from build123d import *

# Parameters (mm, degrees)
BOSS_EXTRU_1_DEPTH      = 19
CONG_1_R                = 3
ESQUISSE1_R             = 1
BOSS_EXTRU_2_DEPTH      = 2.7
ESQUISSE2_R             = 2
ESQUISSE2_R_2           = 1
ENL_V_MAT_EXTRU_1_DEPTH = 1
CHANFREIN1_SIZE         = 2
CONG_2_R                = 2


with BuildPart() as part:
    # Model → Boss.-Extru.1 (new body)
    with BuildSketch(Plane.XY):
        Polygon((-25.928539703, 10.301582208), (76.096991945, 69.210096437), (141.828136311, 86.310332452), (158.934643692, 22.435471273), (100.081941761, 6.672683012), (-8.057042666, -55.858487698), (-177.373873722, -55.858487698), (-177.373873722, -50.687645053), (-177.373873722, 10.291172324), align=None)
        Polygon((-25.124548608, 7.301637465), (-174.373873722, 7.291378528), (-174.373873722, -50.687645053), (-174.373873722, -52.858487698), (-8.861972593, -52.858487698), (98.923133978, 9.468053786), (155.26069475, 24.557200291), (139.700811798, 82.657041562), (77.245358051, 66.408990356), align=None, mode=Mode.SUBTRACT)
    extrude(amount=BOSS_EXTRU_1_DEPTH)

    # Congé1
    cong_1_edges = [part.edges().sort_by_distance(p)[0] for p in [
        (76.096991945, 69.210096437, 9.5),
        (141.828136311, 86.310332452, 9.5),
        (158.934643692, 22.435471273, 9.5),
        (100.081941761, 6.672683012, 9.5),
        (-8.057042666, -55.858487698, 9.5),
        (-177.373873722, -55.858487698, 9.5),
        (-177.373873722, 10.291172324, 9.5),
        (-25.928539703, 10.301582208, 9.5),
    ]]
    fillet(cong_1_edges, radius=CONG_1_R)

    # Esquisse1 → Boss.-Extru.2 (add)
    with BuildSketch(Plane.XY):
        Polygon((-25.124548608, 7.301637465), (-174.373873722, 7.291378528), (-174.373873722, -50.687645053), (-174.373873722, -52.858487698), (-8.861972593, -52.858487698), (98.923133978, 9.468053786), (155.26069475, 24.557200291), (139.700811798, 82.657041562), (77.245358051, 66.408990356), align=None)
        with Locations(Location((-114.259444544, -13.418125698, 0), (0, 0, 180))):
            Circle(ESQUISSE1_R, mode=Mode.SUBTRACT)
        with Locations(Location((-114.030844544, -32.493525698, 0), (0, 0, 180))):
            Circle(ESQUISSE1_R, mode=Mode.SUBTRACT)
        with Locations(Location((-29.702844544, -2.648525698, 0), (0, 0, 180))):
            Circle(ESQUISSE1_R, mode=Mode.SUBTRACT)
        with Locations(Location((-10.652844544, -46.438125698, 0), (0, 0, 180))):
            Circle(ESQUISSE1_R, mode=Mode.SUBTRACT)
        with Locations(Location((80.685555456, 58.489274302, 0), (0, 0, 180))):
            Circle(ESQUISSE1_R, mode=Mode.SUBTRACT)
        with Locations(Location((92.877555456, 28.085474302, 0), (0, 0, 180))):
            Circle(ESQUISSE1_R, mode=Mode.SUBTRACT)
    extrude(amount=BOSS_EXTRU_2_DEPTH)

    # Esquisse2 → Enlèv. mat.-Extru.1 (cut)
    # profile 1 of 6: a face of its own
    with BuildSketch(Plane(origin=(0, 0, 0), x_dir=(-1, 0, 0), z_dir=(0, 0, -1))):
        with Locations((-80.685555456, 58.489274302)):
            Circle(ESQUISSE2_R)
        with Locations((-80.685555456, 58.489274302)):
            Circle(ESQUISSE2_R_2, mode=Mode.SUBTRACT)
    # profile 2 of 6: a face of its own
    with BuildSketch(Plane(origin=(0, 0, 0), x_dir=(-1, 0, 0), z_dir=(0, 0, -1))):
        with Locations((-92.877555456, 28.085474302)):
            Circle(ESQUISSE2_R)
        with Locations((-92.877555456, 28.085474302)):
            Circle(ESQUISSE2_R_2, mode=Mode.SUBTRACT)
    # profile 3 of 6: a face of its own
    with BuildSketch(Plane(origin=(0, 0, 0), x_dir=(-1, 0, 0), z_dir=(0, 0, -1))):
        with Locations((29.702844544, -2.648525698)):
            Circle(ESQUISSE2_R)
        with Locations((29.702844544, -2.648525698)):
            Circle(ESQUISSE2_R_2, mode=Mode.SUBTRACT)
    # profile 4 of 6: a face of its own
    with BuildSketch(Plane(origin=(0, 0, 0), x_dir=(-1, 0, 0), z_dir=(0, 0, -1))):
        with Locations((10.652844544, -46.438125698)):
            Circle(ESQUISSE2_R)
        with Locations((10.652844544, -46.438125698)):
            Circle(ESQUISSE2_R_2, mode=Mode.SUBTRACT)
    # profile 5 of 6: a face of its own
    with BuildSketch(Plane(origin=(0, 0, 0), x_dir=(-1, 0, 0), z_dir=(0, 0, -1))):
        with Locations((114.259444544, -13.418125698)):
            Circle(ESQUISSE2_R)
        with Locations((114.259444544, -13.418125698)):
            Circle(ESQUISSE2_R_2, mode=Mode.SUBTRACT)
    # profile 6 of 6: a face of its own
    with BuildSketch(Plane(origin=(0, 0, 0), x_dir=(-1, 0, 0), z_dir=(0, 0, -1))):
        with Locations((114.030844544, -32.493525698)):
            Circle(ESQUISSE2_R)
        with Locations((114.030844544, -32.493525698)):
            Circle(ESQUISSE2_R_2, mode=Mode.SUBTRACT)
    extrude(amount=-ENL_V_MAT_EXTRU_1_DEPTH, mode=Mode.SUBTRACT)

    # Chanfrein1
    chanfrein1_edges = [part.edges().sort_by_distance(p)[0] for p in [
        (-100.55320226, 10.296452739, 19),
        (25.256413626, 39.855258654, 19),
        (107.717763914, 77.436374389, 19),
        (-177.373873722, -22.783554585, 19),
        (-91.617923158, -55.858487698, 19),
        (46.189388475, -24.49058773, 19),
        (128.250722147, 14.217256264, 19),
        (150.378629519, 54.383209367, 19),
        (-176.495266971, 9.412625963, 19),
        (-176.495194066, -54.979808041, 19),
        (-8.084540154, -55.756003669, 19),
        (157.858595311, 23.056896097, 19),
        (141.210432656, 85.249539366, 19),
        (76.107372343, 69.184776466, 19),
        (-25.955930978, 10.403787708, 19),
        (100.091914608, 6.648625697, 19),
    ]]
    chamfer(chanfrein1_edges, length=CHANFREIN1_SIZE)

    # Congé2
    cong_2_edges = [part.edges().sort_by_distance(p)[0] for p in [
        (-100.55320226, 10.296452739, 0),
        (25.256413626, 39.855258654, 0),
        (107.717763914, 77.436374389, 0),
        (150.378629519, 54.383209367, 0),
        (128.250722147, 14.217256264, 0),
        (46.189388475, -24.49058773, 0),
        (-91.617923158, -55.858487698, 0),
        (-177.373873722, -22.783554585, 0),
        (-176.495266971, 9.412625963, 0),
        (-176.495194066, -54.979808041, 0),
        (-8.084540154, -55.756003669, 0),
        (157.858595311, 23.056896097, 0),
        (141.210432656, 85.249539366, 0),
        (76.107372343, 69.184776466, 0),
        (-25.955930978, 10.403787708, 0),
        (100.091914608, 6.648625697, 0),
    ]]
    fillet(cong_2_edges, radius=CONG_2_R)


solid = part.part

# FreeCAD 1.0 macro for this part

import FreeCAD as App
import Part
import Sketcher

V = App.Vector
Q = App.Units.Quantity


def edges_at(feature, points):
    """Names of the edges that pass closest to the given points."""
    edges = feature.Shape.Edges
    near = lambda p: min(range(len(edges)), key=lambda i: edges[i].distToShape(Part.Vertex(*p))[0])
    return sorted({f"Edge{near(p) + 1}" for p in points})

doc = App.newDocument("Part")
params = doc.addObject("Spreadsheet::Sheet", "Params")
for row, (alias, value) in enumerate([
    ("pad1_length", "19 mm"),
    ("fillet_radius", "3 mm"),
    ("sketch2_diameter", "2 mm"),
    ("pad2_length", "2.7 mm"),
    ("sketch3_diameter", "4 mm"),
    ("sketch3_diameter2", "2 mm"),
    ("pocket1_length", "1 mm"),
    ("chamfer_size", "2 mm"),
    ("fillet2_radius", "2 mm"),
], start=1):
    params.set(f"A{row}", alias)
    params.set(f"B{row}", "=" + value)
    params.setAlias(f"B{row}", alias)

body = doc.addObject("PartDesign::Body", "Body")

# Sketch on XY plane
sketch1 = doc.addObject("Sketcher::SketchObject", "Sketch")
body.addObject(sketch1)
sketch1.AttachmentSupport = (doc.XY_Plane, [""])
sketch1.MapMode = "FlatFace"
sketch1.addGeometry(Part.LineSegment(V(76, 69, 0), V(-26, 10, 0)), False)
sketch1.addGeometry(Part.LineSegment(V(-26, 10, 0), V(-177, 10, 0)), False)
sketch1.addGeometry(Part.LineSegment(V(-177, 10, 0), V(-177, -56, 0)), False)
sketch1.addGeometry(Part.LineSegment(V(-177, -56, 0), V(-8, -56, 0)), False)
sketch1.addGeometry(Part.LineSegment(V(-8, -56, 0), V(100, 7, 0)), False)
sketch1.addGeometry(Part.LineSegment(V(100, 7, 0), V(159, 22, 0)), False)
sketch1.addGeometry(Part.LineSegment(V(159, 22, 0), V(142, 86, 0)), False)
sketch1.addGeometry(Part.LineSegment(V(142, 86, 0), V(76, 69, 0)), False)
sketch1.addGeometry(Part.LineSegment(V(-25, 7, 0), V(77, 66, 0)), False)
sketch1.addGeometry(Part.LineSegment(V(77, 66, 0), V(140, 83, 0)), False)
sketch1.addGeometry(Part.LineSegment(V(140, 83, 0), V(155, 25, 0)), False)
sketch1.addGeometry(Part.LineSegment(V(155, 25, 0), V(99, 9, 0)), False)
sketch1.addGeometry(Part.LineSegment(V(99, 9, 0), V(-9, -53, 0)), False)
sketch1.addGeometry(Part.LineSegment(V(-9, -53, 0), V(-174, -53, 0)), False)
sketch1.addGeometry(Part.LineSegment(V(-174, -53, 0), V(-174, 7, 0)), False)
sketch1.addGeometry(Part.LineSegment(V(-174, 7, 0), V(-25, 7, 0)), False)
sketch1.addConstraint(Sketcher.Constraint("Coincident", 0, 2, 1, 1))
sketch1.addConstraint(Sketcher.Constraint("Coincident", 1, 2, 2, 1))
sketch1.addConstraint(Sketcher.Constraint("Coincident", 2, 2, 3, 1))
sketch1.addConstraint(Sketcher.Constraint("Coincident", 3, 2, 4, 1))
sketch1.addConstraint(Sketcher.Constraint("Coincident", 4, 2, 5, 1))
sketch1.addConstraint(Sketcher.Constraint("Coincident", 5, 2, 6, 1))
sketch1.addConstraint(Sketcher.Constraint("Coincident", 6, 2, 7, 1))
sketch1.addConstraint(Sketcher.Constraint("Coincident", 7, 2, 0, 1))
sketch1.addConstraint(Sketcher.Constraint("Coincident", 8, 2, 9, 1))
sketch1.addConstraint(Sketcher.Constraint("Coincident", 9, 2, 10, 1))
sketch1.addConstraint(Sketcher.Constraint("Coincident", 10, 2, 11, 1))
sketch1.addConstraint(Sketcher.Constraint("Coincident", 11, 2, 12, 1))
sketch1.addConstraint(Sketcher.Constraint("Coincident", 12, 2, 13, 1))
sketch1.addConstraint(Sketcher.Constraint("Coincident", 13, 2, 14, 1))
sketch1.addConstraint(Sketcher.Constraint("Coincident", 14, 2, 15, 1))
sketch1.addConstraint(Sketcher.Constraint("Coincident", 15, 2, 8, 1))
sketch1.addConstraint(Sketcher.Constraint("Vertical", 2))
sketch1.addConstraint(Sketcher.Constraint("Horizontal", 3))
sketch1.addConstraint(Sketcher.Constraint("Horizontal", 13))
sketch1.addConstraint(Sketcher.Constraint("Vertical", 14))
sketch1.addConstraint(Sketcher.Constraint("Parallel", 0, 8))
sketch1.addConstraint(Sketcher.Constraint("Parallel", 7, 9))
sketch1.addConstraint(Sketcher.Constraint("Parallel", 6, 10))
sketch1.addConstraint(Sketcher.Constraint("Parallel", 5, 11))
sketch1.addConstraint(Sketcher.Constraint("Parallel", 4, 12))
sketch1.addConstraint(Sketcher.Constraint("Parallel", 1, 15))
sketch1.addConstraint(Sketcher.Constraint("DistanceY", 3, 2, 12, 2, Q("3 mm")))
sketch1.addConstraint(Sketcher.Constraint("DistanceX", 2, 2, 13, 2, Q("3 mm")))
sketch1.addConstraint(Sketcher.Constraint("DistanceX", 13, 2, 13, 1, Q("165.511901 mm")))
sketch1.addConstraint(Sketcher.Constraint("DistanceX", 3, 1, 3, 2, Q("169.316831 mm")))
sketch1.addConstraint(Sketcher.Constraint("DistanceY", 2, 2, 2, 1, Q("66.14966 mm")))
sketch1.addConstraint(Sketcher.Constraint("DistanceY", -1, 1, 10, 2, Q("24.5572 mm")))
sketch1.addConstraint(Sketcher.Constraint("DistanceY", 4, 2, 0, 2, Q("3.628899 mm")))
sketch1.addConstraint(Sketcher.Constraint("DistanceX", 4, 2, 5, 2, Q("58.852702 mm")))
sketch1.addConstraint(Sketcher.Constraint("DistanceY", 1, 2, 5, 2, Q("12.144299 mm")))
sketch1.addConstraint(Sketcher.Constraint("Distance", 0, Q("117.810959 mm")))
sketch1.addConstraint(Sketcher.Constraint("Distance", 4, Q("124.916721 mm")))
sketch1.addConstraint(Sketcher.Constraint("Distance", 6, Q("66.125869 mm")))
sketch1.addConstraint(Sketcher.Constraint("Distance", 7, Q("67.91908 mm")))
sketch1.addConstraint(Sketcher.Constraint("Distance", 10, Q("60.147332 mm")))
sketch1.addConstraint(Sketcher.Constraint("Distance", 12, Q("124.507939 mm")))
sketch1.addConstraint(Sketcher.Constraint("DistanceY", 14, 1, 14, 2, Q("60.149866 mm")))
sketch1.addConstraint(Sketcher.Constraint("DistanceX", 0, 2, -1, 1, Q("25.92854 mm")))
sketch1.addConstraint(Sketcher.Constraint("DistanceX", -1, 1, 4, 2, Q("100.081942 mm")))
sketch1.addConstraint(Sketcher.Constraint("DistanceY", -1, 1, 5, 2, Q("22.435471 mm")))
sketch1.addConstraint(Sketcher.Constraint("DistanceX", -1, 1, 7, 2, Q("76.096992 mm")))
sketch1.addConstraint(Sketcher.Constraint("DistanceX", -1, 1, 8, 2, Q("77.245358 mm")))
sketch1.addConstraint(Sketcher.Constraint("DistanceY", -1, 1, 8, 2, Q("66.40899 mm")))
pad1 = doc.addObject("PartDesign::Pad", "Pad")
body.addObject(pad1)
pad1.Profile = sketch1
pad1.setExpression("Length", "Params.pad1_length")
doc.recompute()

fillet = doc.addObject("PartDesign::Fillet", "Fillet")
body.addObject(fillet)
fillet.Base = (pad1, edges_at(pad1, [
    (76.097, 69.21, 9.5),
    (141.828, 86.31, 9.5),
    (158.935, 22.435, 9.5),
    (100.082, 6.673, 9.5),
    (-8.057, -55.858, 9.5),
    (-177.374, -55.858, 9.5),
    (-177.374, 10.291, 9.5),
    (-25.929, 10.302, 9.5),
]))
fillet.setExpression("Radius", "Params.fillet_radius")

# Sketch on XY plane
sketch2 = doc.addObject("Sketcher::SketchObject", "Sketch001")
body.addObject(sketch2)
sketch2.AttachmentSupport = (doc.XY_Plane, [""])
sketch2.MapMode = "FlatFace"
sketch2.addGeometry(Part.LineSegment(V(-25.1, 7.3, 0), V(-174.4, 7.3, 0)), False)
sketch2.addGeometry(Part.LineSegment(V(-174.4, 7.3, 0), V(-174.4, -52.9, 0)), False)
sketch2.addGeometry(Part.LineSegment(V(-174.4, -52.9, 0), V(-8.9, -52.9, 0)), False)
sketch2.addGeometry(Part.LineSegment(V(-8.9, -52.9, 0), V(98.9, 9.5, 0)), False)
sketch2.addGeometry(Part.LineSegment(V(98.9, 9.5, 0), V(155.3, 24.6, 0)), False)
sketch2.addGeometry(Part.LineSegment(V(155.3, 24.6, 0), V(139.7, 82.7, 0)), False)
sketch2.addGeometry(Part.LineSegment(V(139.7, 82.7, 0), V(77.2, 66.4, 0)), False)
sketch2.addGeometry(Part.LineSegment(V(77.2, 66.4, 0), V(-25.1, 7.3, 0)), False)
sketch2.addGeometry(Part.Circle(V(-114, -32.5, 0), V(0, 0, 1), 1), False)
sketch2.addGeometry(Part.Circle(V(-114.3, -13.4, 0), V(0, 0, 1), 1), False)
sketch2.addGeometry(Part.Circle(V(-29.7, -2.6, 0), V(0, 0, 1), 1), False)
sketch2.addGeometry(Part.Circle(V(-10.7, -46.4, 0), V(0, 0, 1), 1), False)
sketch2.addGeometry(Part.Circle(V(92.9, 28.1, 0), V(0, 0, 1), 1), False)
sketch2.addGeometry(Part.Circle(V(80.7, 58.5, 0), V(0, 0, 1), 1), False)
sketch2.addConstraint(Sketcher.Constraint("Coincident", 0, 2, 1, 1))
sketch2.addConstraint(Sketcher.Constraint("Coincident", 1, 2, 2, 1))
sketch2.addConstraint(Sketcher.Constraint("Coincident", 2, 2, 3, 1))
sketch2.addConstraint(Sketcher.Constraint("Coincident", 3, 2, 4, 1))
sketch2.addConstraint(Sketcher.Constraint("Coincident", 4, 2, 5, 1))
sketch2.addConstraint(Sketcher.Constraint("Coincident", 5, 2, 6, 1))
sketch2.addConstraint(Sketcher.Constraint("Coincident", 6, 2, 7, 1))
sketch2.addConstraint(Sketcher.Constraint("Coincident", 7, 2, 0, 1))
sketch2.addConstraint(Sketcher.Constraint("Vertical", 1))
sketch2.addConstraint(Sketcher.Constraint("Horizontal", 2))
sketch2.addConstraint(Sketcher.Constraint("Equal", 8, 9))
sketch2.addConstraint(Sketcher.Constraint("Equal", 9, 10))
sketch2.addConstraint(Sketcher.Constraint("Equal", 10, 11))
sketch2.addConstraint(Sketcher.Constraint("Equal", 11, 12))
sketch2.addConstraint(Sketcher.Constraint("Equal", 12, 13))
sketch2.addConstraint(Sketcher.Constraint("Diameter", 8, Q("2 mm")))
sketch2.addConstraint(Sketcher.Constraint("DistanceX", 10, 3, 11, 3, Q("19.05 mm")))
sketch2.addConstraint(Sketcher.Constraint("DistanceY", 11, 3, 9, 3, Q("33.02 mm")))
sketch2.addConstraint(Sketcher.Constraint("DistanceX", 2, 1, 2, 2, Q("165.511901 mm")))
sketch2.addConstraint(Sketcher.Constraint("DistanceX", 8, 3, 10, 3, Q("84.328 mm")))
sketch2.addConstraint(Sketcher.Constraint("DistanceY", 8, 3, 10, 3, Q("29.845 mm")))
sketch2.addConstraint(Sketcher.Constraint("DistanceY", 10, 3, 12, 3, Q("30.734 mm")))
sketch2.addConstraint(Sketcher.Constraint("DistanceX", 9, 3, 12, 3, Q("207.137 mm")))
sketch2.addConstraint(Sketcher.Constraint("DistanceX", 13, 3, 12, 3, Q("12.192 mm")))
sketch2.addConstraint(Sketcher.Constraint("DistanceY", -1, 1, 4, 2, Q("24.5572 mm")))
sketch2.addConstraint(Sketcher.Constraint("DistanceX", 9, 3, 8, 3, Q("0.2286 mm")))
sketch2.addConstraint(Sketcher.Constraint("DistanceY", 8, 3, 9, 3, Q("19.0754 mm")))
sketch2.addConstraint(Sketcher.Constraint("DistanceY", 12, 3, 13, 3, Q("30.4038 mm")))
sketch2.addConstraint(Sketcher.Constraint("Distance", 3, Q("124.507939 mm")))
sketch2.addConstraint(Sketcher.Constraint("Distance", 5, Q("60.147332 mm")))
sketch2.addConstraint(Sketcher.Constraint("DistanceY", 1, 2, 1, 1, Q("60.149866 mm")))
sketch2.addConstraint(Sketcher.Constraint("DistanceY", -1, 1, 0, 2, Q("7.291379 mm")))
sketch2.addConstraint(Sketcher.Constraint("DistanceX", -1, 1, 5, 2, Q("139.700812 mm")))
sketch2.addConstraint(Sketcher.Constraint("DistanceY", -1, 1, 5, 2, Q("82.657042 mm")))
sketch2.addConstraint(Sketcher.Constraint("DistanceX", -1, 1, 6, 2, Q("77.245358 mm")))
sketch2.addConstraint(Sketcher.Constraint("DistanceY", -1, 1, 6, 2, Q("66.40899 mm")))
sketch2.addConstraint(Sketcher.Constraint("DistanceX", 7, 2, -1, 1, Q("25.124549 mm")))
sketch2.addConstraint(Sketcher.Constraint("DistanceX", 0, 2, 9, 3, Q("60.114429 mm")))
sketch2.addConstraint(Sketcher.Constraint("DistanceY", 1, 2, 8, 3, Q("20.364962 mm")))
sketch2.addConstraint(Sketcher.Constraint("DistanceX", 12, 3, 3, 2, Q("6.045579 mm")))
sketch2.addConstraint(Sketcher.Constraint("DistanceX", 3, 2, 4, 2, Q("56.337561 mm")))
sketch2.addConstraint(Sketcher.Constraint("Distance", 7, Q("118.208616 mm")))
sketch2.setExpression("Constraints[15]", "Params.sketch2_diameter")
pad2 = doc.addObject("PartDesign::Pad", "Pad001")
body.addObject(pad2)
pad2.Profile = sketch2
pad2.setExpression("Length", "Params.pad2_length")

# Sketch on XY plane
sketch3 = doc.addObject("Sketcher::SketchObject", "Sketch002")
body.addObject(sketch3)
sketch3.AttachmentSupport = (doc.XY_Plane, [""])
sketch3.MapMode = "FlatFace"
sketch3.addGeometry(Part.Circle(V(80.7, 58.5, 0), V(0, 0, 1), 2), False)
sketch3.addGeometry(Part.Circle(V(80.7, 58.5, 0), V(0, 0, 1), 1), False)
sketch3.addGeometry(Part.Circle(V(92.9, 28.1, 0), V(0, 0, 1), 2), False)
sketch3.addGeometry(Part.Circle(V(92.9, 28.1, 0), V(0, 0, 1), 1), False)
sketch3.addGeometry(Part.Circle(V(-29.7, -2.6, 0), V(0, 0, 1), 2), False)
sketch3.addGeometry(Part.Circle(V(-29.7, -2.6, 0), V(0, 0, 1), 1), False)
sketch3.addGeometry(Part.Circle(V(-10.7, -46.4, 0), V(0, 0, 1), 2), False)
sketch3.addGeometry(Part.Circle(V(-10.7, -46.4, 0), V(0, 0, 1), 1), False)
sketch3.addGeometry(Part.Circle(V(-114.3, -13.4, 0), V(0, 0, 1), 2), False)
sketch3.addGeometry(Part.Circle(V(-114.3, -13.4, 0), V(0, 0, 1), 1), False)
sketch3.addGeometry(Part.Circle(V(-114, -32.5, 0), V(0, 0, 1), 2), False)
sketch3.addGeometry(Part.Circle(V(-114, -32.5, 0), V(0, 0, 1), 1), False)
sketch3.addConstraint(Sketcher.Constraint("Coincident", 1, 3, 0, 3))
sketch3.addConstraint(Sketcher.Constraint("Coincident", 3, 3, 2, 3))
sketch3.addConstraint(Sketcher.Constraint("Coincident", 5, 3, 4, 3))
sketch3.addConstraint(Sketcher.Constraint("Coincident", 7, 3, 6, 3))
sketch3.addConstraint(Sketcher.Constraint("Coincident", 9, 3, 8, 3))
sketch3.addConstraint(Sketcher.Constraint("Coincident", 11, 3, 10, 3))
sketch3.addConstraint(Sketcher.Constraint("Equal", 0, 2))
sketch3.addConstraint(Sketcher.Constraint("Equal", 1, 3))
sketch3.addConstraint(Sketcher.Constraint("Equal", 2, 4))
sketch3.addConstraint(Sketcher.Constraint("Equal", 3, 5))
sketch3.addConstraint(Sketcher.Constraint("Equal", 4, 6))
sketch3.addConstraint(Sketcher.Constraint("Equal", 5, 7))
sketch3.addConstraint(Sketcher.Constraint("Equal", 6, 8))
sketch3.addConstraint(Sketcher.Constraint("Equal", 7, 9))
sketch3.addConstraint(Sketcher.Constraint("Equal", 8, 10))
sketch3.addConstraint(Sketcher.Constraint("Equal", 9, 11))
sketch3.addConstraint(Sketcher.Constraint("Diameter", 0, Q("4 mm")))
sketch3.addConstraint(Sketcher.Constraint("Diameter", 1, Q("2 mm")))
sketch3.addConstraint(Sketcher.Constraint("DistanceX", 4, 3, 6, 3, Q("19.05 mm")))
sketch3.addConstraint(Sketcher.Constraint("DistanceY", 6, 3, 8, 3, Q("33.02 mm")))
sketch3.addConstraint(Sketcher.Constraint("DistanceX", 0, 3, 2, 3, Q("12.192 mm")))
sketch3.addConstraint(Sketcher.Constraint("DistanceY", 4, 3, 2, 3, Q("30.734 mm")))
sketch3.addConstraint(Sketcher.Constraint("DistanceX", 8, 3, 0, 3, Q("194.945 mm")))
sketch3.addConstraint(Sketcher.Constraint("DistanceX", 10, 3, 4, 3, Q("84.328 mm")))
sketch3.addConstraint(Sketcher.Constraint("DistanceY", 10, 3, 4, 3, Q("29.845 mm")))
sketch3.addConstraint(Sketcher.Constraint("DistanceY", 2, 3, 0, 3, Q("30.4038 mm")))
sketch3.addConstraint(Sketcher.Constraint("DistanceX", 4, 3, 0, 3, Q("110.3884 mm")))
sketch3.addConstraint(Sketcher.Constraint("DistanceY", 6, 3, 4, 3, Q("43.7896 mm")))
sketch3.addConstraint(Sketcher.Constraint("DistanceX", -1, 1, 0, 3, Q("80.685555 mm")))
sketch3.addConstraint(Sketcher.Constraint("DistanceY", -1, 1, 0, 3, Q("58.489274 mm")))
sketch3.setExpression("Constraints[16]", "Params.sketch3_diameter")
sketch3.setExpression("Constraints[17]", "Params.sketch3_diameter2")
pocket1 = doc.addObject("PartDesign::Pocket", "Pocket")
body.addObject(pocket1)
pocket1.Profile = sketch3
pocket1.setExpression("Length", "Params.pocket1_length")
pocket1.Reversed = True
doc.recompute()

chamfer = doc.addObject("PartDesign::Chamfer", "Chamfer")
body.addObject(chamfer)
chamfer.Base = (pocket1, edges_at(pocket1, [
    (-100.553, 10.296, 19),
    (25.256, 39.855, 19),
    (107.718, 77.436, 19),
    (-177.374, -22.784, 19),
    (-91.618, -55.858, 19),
    (46.189, -24.491, 19),
    (128.251, 14.217, 19),
    (150.379, 54.383, 19),
    (-176.495, 9.413, 19),
    (-176.495, -54.98, 19),
    (-8.085, -55.756, 19),
    (157.859, 23.057, 19),
    (141.21, 85.25, 19),
    (76.107, 69.185, 19),
    (-25.956, 10.404, 19),
    (100.092, 6.649, 19),
]))
chamfer.setExpression("Size", "Params.chamfer_size")
doc.recompute()

fillet2 = doc.addObject("PartDesign::Fillet", "Fillet001")
body.addObject(fillet2)
fillet2.Base = (chamfer, edges_at(chamfer, [
    (-100.553, 10.296, 0),
    (25.256, 39.855, 0),
    (107.718, 77.436, 0),
    (150.379, 54.383, 0),
    (128.251, 14.217, 0),
    (46.189, -24.491, 0),
    (-91.618, -55.858, 0),
    (-177.374, -22.784, 0),
    (-176.495, 9.413, 0),
    (-176.495, -54.98, 0),
    (-8.085, -55.756, 0),
    (157.859, 23.057, 0),
    (141.21, 85.25, 0),
    (76.107, 69.185, 0),
    (-25.956, 10.404, 0),
    (100.092, 6.649, 0),
]))
fillet2.setExpression("Radius", "Params.fillet2_radius")

doc.recompute()
